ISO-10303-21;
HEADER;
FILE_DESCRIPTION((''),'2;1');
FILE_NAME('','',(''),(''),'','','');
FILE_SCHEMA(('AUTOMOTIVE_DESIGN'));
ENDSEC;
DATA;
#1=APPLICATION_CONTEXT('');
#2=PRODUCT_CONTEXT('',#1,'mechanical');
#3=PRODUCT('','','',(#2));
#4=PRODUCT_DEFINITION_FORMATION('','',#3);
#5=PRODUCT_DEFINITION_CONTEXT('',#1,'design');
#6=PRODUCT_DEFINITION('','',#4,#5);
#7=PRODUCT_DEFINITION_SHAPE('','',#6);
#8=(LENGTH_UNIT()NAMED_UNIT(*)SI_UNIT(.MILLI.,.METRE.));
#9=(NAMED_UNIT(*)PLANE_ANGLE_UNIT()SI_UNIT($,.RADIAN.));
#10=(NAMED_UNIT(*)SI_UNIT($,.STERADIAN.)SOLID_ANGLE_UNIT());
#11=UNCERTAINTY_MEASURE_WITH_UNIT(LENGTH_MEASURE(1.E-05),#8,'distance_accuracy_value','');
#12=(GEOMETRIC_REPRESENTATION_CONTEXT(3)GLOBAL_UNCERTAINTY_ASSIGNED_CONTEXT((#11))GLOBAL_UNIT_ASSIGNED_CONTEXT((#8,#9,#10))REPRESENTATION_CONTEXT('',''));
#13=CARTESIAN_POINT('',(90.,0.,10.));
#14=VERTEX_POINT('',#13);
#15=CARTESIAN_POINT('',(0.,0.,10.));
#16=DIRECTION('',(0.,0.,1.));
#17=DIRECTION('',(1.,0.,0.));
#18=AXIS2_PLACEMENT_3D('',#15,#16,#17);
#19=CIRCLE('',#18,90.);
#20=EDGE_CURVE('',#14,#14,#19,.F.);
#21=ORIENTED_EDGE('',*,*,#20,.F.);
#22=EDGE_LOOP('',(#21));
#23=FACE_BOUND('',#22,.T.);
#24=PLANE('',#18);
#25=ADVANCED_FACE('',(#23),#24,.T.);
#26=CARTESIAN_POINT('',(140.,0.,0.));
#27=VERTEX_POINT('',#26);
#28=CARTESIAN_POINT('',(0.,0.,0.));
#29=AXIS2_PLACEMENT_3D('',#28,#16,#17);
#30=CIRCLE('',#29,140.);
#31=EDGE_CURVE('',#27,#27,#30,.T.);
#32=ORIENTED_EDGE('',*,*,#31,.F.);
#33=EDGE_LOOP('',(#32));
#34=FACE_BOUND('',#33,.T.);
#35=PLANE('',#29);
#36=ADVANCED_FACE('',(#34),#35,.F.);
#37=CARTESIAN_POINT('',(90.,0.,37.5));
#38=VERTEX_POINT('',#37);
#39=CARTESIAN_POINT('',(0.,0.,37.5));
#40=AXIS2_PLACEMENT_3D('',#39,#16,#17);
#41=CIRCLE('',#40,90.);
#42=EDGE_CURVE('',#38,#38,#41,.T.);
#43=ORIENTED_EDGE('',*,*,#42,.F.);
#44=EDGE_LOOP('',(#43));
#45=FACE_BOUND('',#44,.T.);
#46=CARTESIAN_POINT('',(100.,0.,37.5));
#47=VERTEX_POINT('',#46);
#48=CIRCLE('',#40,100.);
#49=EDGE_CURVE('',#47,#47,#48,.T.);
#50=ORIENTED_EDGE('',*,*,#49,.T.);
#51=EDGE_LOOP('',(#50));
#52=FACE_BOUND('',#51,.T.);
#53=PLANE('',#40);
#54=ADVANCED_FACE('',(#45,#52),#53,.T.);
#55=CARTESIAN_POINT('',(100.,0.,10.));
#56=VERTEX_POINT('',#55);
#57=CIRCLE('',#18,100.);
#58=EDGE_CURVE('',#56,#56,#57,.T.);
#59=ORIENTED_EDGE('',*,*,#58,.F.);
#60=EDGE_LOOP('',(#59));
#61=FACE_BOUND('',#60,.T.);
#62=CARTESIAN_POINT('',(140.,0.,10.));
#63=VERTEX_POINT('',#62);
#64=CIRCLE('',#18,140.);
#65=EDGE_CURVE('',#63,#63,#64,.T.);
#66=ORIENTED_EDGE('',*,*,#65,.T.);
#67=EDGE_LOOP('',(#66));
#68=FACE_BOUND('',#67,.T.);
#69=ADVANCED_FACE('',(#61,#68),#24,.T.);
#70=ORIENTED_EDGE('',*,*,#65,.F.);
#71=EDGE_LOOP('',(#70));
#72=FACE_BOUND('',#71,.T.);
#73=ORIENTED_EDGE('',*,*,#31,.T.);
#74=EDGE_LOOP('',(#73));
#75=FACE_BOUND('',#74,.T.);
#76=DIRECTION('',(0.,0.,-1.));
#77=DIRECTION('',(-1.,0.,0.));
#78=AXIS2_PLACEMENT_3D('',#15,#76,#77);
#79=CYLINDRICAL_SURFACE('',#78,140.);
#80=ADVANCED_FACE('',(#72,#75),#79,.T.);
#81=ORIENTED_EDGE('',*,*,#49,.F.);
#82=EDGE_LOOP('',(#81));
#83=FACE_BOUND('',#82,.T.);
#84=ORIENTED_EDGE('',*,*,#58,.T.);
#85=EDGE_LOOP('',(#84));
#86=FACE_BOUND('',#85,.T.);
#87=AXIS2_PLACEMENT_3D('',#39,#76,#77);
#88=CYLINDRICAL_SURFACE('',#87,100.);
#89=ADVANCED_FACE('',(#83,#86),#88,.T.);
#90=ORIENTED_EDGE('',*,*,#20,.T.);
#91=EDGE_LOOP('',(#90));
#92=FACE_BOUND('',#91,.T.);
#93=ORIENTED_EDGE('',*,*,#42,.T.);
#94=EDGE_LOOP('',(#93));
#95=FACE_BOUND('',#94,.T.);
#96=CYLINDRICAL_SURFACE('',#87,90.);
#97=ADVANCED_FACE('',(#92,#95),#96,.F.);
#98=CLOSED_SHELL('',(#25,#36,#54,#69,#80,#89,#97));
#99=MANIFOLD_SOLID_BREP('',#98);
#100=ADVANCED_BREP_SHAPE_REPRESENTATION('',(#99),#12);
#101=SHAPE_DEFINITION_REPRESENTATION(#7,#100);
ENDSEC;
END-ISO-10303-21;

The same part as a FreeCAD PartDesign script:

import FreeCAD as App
import Part
import Sketcher

V = App.Vector

doc = App.newDocument("Part")
body = doc.addObject("PartDesign::Body", "Body")

sketch1 = body.newObject("Sketcher::SketchObject", "Sketch")
sketch1.AttachmentSupport = (doc.getObject("XY_Plane"), [""])
sketch1.MapMode = "FlatFace"
sketch1.addGeometry(Part.Circle(V(0, 0, 0), V(0, 0, 1), 140), False)
sketch1.addConstraint(Sketcher.Constraint("Coincident", 0, 3, -1, 1))
sketch1.addConstraint(Sketcher.Constraint("Diameter", 0, 280.0))
pad1 = body.newObject("PartDesign::Pad", "Pad")
pad1.Profile = sketch1
pad1.Length = 10

sketch2 = body.newObject("Sketcher::SketchObject", "Sketch001")
sketch2.AttachmentSupport = (doc.getObject("XY_Plane"), [""])
sketch2.MapMode = "FlatFace"
sketch2.AttachmentOffset = App.Placement(V(0, 0, 10), App.Rotation())
sketch2.addGeometry(Part.Circle(V(0, 0, 0), V(0, 0, 1), 100), False)
sketch2.addGeometry(Part.Circle(V(0, 0, 0), V(0, 0, 1), 90), False)
sketch2.addConstraint(Sketcher.Constraint("Coincident", 0, 3, -1, 1))
sketch2.addConstraint(Sketcher.Constraint("Coincident", 1, 3, -1, 1))
sketch2.addConstraint(Sketcher.Constraint("Diameter", 0, 200.0))
sketch2.addConstraint(Sketcher.Constraint("Diameter", 1, 180.0))
pad2 = body.newObject("PartDesign::Pad", "Pad001")
pad2.Profile = sketch2
pad2.Length = 27.5

doc.recompute()
